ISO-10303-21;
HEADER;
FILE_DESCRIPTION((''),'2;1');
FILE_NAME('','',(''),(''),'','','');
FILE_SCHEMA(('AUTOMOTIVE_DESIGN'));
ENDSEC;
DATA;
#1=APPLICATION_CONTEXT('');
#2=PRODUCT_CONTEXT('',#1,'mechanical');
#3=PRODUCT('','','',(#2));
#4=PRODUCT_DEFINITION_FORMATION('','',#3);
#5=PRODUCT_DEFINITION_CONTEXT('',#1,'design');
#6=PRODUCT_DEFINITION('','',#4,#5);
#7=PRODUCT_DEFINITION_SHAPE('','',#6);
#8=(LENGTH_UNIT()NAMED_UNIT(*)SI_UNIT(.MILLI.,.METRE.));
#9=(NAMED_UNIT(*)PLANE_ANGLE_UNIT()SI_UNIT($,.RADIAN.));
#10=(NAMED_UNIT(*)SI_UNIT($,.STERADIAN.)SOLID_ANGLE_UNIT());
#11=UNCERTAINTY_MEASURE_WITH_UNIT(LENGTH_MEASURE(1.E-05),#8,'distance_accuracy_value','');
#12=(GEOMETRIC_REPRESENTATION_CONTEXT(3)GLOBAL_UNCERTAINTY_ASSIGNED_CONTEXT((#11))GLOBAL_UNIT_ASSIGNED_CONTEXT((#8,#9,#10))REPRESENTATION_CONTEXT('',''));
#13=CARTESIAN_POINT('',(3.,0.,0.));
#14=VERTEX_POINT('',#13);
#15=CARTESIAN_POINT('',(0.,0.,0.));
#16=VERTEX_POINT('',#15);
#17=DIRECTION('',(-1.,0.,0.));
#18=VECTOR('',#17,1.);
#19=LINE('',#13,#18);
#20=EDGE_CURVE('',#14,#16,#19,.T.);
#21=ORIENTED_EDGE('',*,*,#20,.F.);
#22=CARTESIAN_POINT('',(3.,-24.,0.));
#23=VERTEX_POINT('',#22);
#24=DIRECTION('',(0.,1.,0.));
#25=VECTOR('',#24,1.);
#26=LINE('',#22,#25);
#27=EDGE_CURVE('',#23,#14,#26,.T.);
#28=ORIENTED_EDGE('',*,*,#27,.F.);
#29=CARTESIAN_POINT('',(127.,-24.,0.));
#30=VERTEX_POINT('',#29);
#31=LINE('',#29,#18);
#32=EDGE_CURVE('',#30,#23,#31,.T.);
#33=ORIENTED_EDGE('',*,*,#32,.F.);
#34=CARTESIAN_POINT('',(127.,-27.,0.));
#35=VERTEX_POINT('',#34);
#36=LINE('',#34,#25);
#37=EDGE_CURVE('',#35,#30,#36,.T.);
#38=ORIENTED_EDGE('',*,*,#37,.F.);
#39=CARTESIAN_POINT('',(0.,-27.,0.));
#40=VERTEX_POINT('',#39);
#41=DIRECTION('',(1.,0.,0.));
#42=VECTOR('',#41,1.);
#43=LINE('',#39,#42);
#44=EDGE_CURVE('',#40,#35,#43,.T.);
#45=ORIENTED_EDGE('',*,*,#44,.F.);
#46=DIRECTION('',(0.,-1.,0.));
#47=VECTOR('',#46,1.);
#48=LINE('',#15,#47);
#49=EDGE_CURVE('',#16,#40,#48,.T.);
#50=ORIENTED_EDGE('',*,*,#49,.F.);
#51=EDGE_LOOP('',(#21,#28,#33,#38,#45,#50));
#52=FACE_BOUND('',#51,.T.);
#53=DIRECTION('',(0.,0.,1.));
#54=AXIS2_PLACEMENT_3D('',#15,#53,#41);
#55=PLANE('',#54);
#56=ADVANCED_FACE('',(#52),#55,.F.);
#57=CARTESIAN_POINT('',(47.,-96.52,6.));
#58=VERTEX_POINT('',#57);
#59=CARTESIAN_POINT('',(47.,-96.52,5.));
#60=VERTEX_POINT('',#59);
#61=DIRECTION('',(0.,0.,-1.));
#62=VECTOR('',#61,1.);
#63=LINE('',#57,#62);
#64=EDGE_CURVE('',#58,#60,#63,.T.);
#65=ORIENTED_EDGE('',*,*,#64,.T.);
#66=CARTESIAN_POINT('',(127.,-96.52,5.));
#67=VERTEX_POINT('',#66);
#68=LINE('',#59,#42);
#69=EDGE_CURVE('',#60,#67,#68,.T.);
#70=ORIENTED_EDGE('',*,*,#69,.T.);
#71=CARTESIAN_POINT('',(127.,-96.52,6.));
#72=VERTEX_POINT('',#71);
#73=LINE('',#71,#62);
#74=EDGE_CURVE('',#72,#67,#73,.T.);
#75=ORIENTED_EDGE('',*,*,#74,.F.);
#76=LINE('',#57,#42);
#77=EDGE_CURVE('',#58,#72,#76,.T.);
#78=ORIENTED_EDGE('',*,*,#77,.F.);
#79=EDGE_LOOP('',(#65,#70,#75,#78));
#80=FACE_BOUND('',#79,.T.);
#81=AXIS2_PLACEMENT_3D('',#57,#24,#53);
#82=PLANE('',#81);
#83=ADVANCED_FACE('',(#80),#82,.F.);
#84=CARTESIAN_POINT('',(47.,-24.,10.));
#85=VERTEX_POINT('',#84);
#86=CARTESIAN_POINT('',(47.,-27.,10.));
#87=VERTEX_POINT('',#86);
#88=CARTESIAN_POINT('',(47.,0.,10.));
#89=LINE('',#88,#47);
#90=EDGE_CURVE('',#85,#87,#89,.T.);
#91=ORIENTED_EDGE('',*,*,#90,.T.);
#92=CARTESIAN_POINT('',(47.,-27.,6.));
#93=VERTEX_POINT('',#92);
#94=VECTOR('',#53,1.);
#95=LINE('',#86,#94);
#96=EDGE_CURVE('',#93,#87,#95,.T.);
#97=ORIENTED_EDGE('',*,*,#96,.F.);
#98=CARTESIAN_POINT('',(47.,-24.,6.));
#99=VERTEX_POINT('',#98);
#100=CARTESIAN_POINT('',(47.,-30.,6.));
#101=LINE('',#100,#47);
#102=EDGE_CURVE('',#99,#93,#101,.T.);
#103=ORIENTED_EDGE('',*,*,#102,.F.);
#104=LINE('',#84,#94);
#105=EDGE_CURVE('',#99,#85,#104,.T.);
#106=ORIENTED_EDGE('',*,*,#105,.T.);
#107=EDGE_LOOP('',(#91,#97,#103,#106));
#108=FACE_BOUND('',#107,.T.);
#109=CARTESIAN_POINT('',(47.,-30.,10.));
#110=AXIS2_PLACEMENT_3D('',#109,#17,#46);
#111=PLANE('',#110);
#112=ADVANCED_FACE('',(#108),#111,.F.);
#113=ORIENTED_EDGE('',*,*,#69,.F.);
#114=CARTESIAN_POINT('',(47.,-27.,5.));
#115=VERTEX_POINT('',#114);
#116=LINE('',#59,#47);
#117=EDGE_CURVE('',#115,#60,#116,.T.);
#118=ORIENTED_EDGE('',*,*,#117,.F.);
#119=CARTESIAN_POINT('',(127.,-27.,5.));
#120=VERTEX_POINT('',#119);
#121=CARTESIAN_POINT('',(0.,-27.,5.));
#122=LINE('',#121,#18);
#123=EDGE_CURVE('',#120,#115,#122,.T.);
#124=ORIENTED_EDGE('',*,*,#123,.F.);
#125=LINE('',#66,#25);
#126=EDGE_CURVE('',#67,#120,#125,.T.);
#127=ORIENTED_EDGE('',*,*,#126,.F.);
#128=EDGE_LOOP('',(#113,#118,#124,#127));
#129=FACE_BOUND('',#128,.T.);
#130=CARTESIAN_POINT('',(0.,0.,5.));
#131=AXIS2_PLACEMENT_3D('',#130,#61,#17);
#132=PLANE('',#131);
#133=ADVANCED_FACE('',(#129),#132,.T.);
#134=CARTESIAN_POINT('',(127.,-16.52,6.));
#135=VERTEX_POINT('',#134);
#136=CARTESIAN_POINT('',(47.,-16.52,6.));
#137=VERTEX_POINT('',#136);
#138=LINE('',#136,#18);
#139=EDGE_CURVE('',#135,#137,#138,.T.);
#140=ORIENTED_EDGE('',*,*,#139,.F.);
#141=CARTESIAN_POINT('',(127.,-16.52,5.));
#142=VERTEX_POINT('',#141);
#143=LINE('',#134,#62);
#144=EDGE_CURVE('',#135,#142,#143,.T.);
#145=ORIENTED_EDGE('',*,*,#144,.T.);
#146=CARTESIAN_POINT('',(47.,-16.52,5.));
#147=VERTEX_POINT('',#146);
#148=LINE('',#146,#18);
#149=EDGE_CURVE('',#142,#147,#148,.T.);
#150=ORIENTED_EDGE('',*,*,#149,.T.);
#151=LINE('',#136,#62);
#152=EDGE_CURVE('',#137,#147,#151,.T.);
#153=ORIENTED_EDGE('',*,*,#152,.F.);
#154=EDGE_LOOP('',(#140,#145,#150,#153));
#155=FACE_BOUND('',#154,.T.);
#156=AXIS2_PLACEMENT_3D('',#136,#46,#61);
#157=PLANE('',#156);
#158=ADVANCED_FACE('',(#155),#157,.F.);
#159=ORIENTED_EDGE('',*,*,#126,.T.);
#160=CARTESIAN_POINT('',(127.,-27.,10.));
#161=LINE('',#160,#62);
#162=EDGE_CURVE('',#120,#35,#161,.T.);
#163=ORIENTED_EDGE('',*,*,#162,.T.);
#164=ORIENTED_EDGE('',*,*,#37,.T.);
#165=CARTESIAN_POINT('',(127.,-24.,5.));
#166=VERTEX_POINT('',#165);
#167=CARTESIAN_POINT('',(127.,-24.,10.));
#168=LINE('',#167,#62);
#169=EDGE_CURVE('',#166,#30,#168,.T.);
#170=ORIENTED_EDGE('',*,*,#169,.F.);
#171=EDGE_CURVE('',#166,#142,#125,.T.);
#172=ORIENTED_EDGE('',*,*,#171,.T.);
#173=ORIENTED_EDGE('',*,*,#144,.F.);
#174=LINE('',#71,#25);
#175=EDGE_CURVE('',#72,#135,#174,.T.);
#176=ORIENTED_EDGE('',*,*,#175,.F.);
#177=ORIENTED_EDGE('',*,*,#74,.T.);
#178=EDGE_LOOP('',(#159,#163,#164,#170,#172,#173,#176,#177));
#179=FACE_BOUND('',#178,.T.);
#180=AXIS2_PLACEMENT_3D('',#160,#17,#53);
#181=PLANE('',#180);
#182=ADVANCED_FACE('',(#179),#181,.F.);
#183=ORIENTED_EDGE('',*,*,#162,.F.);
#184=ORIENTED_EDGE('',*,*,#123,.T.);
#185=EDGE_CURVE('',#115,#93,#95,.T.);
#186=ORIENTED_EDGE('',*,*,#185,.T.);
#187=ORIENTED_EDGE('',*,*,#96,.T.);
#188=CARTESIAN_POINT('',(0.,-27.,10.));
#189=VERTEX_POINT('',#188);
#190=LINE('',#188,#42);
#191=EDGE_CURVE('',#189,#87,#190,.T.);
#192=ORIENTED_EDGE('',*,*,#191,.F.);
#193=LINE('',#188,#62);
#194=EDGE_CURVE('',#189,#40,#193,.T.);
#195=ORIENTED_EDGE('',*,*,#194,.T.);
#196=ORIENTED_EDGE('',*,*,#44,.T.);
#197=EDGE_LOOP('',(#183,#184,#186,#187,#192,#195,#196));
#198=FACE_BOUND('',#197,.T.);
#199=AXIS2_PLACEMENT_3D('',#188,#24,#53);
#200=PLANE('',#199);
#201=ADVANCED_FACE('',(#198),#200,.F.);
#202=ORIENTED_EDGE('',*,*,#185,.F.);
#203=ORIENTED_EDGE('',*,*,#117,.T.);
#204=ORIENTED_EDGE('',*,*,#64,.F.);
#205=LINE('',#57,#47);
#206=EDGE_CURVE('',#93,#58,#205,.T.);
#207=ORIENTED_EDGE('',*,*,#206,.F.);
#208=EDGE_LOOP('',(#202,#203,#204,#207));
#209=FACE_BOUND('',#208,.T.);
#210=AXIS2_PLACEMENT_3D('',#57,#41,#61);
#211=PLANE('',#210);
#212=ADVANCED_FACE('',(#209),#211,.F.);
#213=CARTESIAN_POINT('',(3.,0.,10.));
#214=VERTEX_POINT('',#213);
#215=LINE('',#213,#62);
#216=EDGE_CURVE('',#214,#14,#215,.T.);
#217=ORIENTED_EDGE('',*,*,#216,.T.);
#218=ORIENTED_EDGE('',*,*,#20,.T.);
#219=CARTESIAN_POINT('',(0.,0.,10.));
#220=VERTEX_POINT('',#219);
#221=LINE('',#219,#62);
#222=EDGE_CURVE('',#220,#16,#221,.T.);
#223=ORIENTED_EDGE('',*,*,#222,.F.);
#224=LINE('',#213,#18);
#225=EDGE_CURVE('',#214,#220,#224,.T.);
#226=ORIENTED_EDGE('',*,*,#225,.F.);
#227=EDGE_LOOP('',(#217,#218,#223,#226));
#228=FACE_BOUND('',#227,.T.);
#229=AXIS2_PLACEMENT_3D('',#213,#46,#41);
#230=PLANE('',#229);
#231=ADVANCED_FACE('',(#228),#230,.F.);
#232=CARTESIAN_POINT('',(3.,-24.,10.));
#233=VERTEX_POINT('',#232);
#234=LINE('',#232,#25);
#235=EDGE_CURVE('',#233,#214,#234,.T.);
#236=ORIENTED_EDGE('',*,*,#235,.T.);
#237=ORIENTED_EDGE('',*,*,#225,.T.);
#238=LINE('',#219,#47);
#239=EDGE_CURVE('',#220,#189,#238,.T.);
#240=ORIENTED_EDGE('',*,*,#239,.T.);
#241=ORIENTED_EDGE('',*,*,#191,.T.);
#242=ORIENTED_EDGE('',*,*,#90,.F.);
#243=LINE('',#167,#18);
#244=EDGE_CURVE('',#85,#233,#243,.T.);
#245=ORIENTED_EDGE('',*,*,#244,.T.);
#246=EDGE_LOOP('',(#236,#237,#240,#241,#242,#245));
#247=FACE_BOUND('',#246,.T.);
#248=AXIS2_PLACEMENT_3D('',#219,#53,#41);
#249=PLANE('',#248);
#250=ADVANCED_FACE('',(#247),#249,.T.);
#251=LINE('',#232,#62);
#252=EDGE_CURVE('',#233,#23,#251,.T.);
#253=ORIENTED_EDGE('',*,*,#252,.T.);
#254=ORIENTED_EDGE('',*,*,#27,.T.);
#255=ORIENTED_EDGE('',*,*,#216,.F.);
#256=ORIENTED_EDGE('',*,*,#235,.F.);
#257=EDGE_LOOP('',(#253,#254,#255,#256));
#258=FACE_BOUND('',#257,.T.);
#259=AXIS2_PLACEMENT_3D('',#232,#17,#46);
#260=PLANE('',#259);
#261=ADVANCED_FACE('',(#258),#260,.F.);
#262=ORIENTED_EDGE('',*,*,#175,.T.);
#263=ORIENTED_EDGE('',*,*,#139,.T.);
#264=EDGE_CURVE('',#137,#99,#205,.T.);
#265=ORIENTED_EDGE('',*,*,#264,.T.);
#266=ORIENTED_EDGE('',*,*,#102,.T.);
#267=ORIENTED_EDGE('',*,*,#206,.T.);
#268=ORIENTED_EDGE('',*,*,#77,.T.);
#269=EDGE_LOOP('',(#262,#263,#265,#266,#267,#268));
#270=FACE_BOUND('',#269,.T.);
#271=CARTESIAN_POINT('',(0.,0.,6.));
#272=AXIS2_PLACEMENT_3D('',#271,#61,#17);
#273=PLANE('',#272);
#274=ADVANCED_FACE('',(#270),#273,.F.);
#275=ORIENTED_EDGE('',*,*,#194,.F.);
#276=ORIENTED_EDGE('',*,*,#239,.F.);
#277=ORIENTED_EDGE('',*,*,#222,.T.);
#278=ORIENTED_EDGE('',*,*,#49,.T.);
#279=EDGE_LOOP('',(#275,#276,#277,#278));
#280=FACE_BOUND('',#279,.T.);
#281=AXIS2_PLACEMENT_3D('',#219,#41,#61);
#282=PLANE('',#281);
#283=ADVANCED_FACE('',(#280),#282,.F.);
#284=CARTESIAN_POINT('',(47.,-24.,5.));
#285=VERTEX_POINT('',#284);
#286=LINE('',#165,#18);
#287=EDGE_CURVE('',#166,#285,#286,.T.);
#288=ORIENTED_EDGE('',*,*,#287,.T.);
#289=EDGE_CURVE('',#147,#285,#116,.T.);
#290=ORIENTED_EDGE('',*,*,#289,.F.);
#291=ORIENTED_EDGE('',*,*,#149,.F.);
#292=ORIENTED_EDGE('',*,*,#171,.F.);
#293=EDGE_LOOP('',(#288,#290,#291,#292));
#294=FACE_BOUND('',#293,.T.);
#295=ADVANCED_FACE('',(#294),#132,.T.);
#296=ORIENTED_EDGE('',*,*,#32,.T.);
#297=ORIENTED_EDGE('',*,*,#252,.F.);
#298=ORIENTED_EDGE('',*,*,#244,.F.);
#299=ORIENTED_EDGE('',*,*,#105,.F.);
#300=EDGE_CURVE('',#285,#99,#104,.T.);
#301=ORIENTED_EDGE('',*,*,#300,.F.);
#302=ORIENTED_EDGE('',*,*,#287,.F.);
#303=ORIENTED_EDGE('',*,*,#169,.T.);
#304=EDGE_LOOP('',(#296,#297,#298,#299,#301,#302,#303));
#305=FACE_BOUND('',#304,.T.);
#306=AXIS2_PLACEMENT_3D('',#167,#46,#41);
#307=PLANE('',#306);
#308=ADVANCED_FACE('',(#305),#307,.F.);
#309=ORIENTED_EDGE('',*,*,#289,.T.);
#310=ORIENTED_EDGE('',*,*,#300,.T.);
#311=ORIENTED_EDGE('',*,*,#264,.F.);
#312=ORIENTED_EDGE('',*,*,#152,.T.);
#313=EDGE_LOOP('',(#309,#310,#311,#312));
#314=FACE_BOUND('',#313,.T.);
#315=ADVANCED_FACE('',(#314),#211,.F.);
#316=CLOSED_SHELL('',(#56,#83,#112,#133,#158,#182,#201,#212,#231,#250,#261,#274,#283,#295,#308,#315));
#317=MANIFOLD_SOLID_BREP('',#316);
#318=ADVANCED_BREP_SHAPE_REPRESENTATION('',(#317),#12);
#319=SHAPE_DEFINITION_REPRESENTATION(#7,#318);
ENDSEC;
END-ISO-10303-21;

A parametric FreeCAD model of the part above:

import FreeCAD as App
import Part
import Sketcher

doc = App.newDocument("Part")
body = doc.addObject("PartDesign::Body", "Body")

# Sketch on XY plane
sketch1 = body.newObject("Sketcher::SketchObject", "Sketch")
sketch1.AttachmentSupport = (doc.getObject("XY_Plane"), [""])
sketch1.MapMode = "FlatFace"
sketch1.addGeometry([
    Part.LineSegment(App.Vector(0, 0, 0), App.Vector(0, -27, 0)),  # 0
    Part.LineSegment(App.Vector(0, -27, 0), App.Vector(127, -27, 0)),  # 1
    Part.LineSegment(App.Vector(127, -27, 0), App.Vector(127, -24, 0)),  # 2
    Part.LineSegment(App.Vector(127, -24, 0), App.Vector(3, -24, 0)),  # 3
    Part.LineSegment(App.Vector(3, -24, 0), App.Vector(3, 0, 0)),  # 4
    Part.LineSegment(App.Vector(3, 0, 0), App.Vector(0, 0, 0)),  # 5
], False)
sketch1.addConstraint([
    Sketcher.Constraint("Coincident", 0, 2, 1, 1),
    Sketcher.Constraint("Coincident", 1, 2, 2, 1),
    Sketcher.Constraint("Coincident", 2, 2, 3, 1),
    Sketcher.Constraint("Coincident", 3, 2, 4, 1),
    Sketcher.Constraint("Coincident", 4, 2, 5, 1),
    Sketcher.Constraint("Coincident", 5, 2, 0, 1),
    Sketcher.Constraint("Vertical", 0),
    Sketcher.Constraint("Horizontal", 1),
    Sketcher.Constraint("Vertical", 2),
    Sketcher.Constraint("Horizontal", 3),
    Sketcher.Constraint("Vertical", 4),
    Sketcher.Constraint("Horizontal", 5),
    Sketcher.Constraint("Coincident", 5, 2, -1, 1),
    Sketcher.Constraint("Equal", 5, 2),
    Sketcher.Constraint("DistanceX", 1, 1, 1, 2, 127.0),
    Sketcher.Constraint("DistanceX", 3, 2, 3, 1, 124.0),
    Sketcher.Constraint("DistanceY", 0, 2, 0, 1, 27.0),
])
pad1 = body.newObject("PartDesign::Pad", "Pad")
pad1.Profile = sketch1
pad1.Length = 10

# Sketch on XZ plane
sketch2 = body.newObject("Sketcher::SketchObject", "Sketch001")
sketch2.AttachmentSupport = (doc.getObject("XZ_Plane"), [""])
sketch2.MapMode = "FlatFace"
sketch2.AttachmentOffset = App.Placement(App.Vector(0, 0, 24), App.Rotation())
sketch2.addGeometry([
    Part.LineSegment(App.Vector(47, 5, 0), App.Vector(47, 10, 0)),
    Part.LineSegment(App.Vector(47, 10, 0), App.Vector(127, 10, 0)),
    Part.LineSegment(App.Vector(127, 10, 0), App.Vector(127, 5, 0)),
    Part.LineSegment(App.Vector(127, 5, 0), App.Vector(47, 5, 0)),
], False)
sketch2.addConstraint([
    Sketcher.Constraint("Coincident", 0, 2, 1, 1),
    Sketcher.Constraint("Coincident", 1, 2, 2, 1),
    Sketcher.Constraint("Coincident", 2, 2, 3, 1),
    Sketcher.Constraint("Coincident", 3, 2, 0, 1),
    Sketcher.Constraint("Vertical", 0),
    Sketcher.Constraint("Horizontal", 1),
    Sketcher.Constraint("Vertical", 2),
    Sketcher.Constraint("Horizontal", 3),
    Sketcher.Constraint("DistanceX", 1, 1, 1, 2, 80.0),
    Sketcher.Constraint("DistanceY", 0, 1, 0, 2, 5.0),
    Sketcher.Constraint("DistanceX", -1, 1, 0, 2, 47.0),
    Sketcher.Constraint("DistanceY", -1, 1, 0, 2, 10.0),
])
pocket1 = body.newObject("PartDesign::Pocket", "Pocket")
pocket1.Profile = sketch2
pocket1.Length = 6
pocket1.Reversed = True

# Sketch on XY plane
sketch3 = body.newObject("Sketcher::SketchObject", "Sketch002")
sketch3.AttachmentSupport = (doc.getObject("XY_Plane"), [""])
sketch3.MapMode = "FlatFace"
sketch3.AttachmentOffset = App.Placement(App.Vector(0, 0, 5), App.Rotation())
sketch3.addGeometry([
    Part.LineSegment(App.Vector(47, -16.52, 0), App.Vector(47, -96.52, 0)),
    Part.LineSegment(App.Vector(47, -96.52, 0), App.Vector(127, -96.52, 0)),
    Part.LineSegment(App.Vector(127, -96.52, 0), App.Vector(127, -16.52, 0)),
    Part.LineSegment(App.Vector(127, -16.52, 0), App.Vector(47, -16.52, 0)),
], False)
sketch3.addConstraint([
    Sketcher.Constraint("Coincident", 0, 2, 1, 1),
    Sketcher.Constraint("Coincident", 1, 2, 2, 1),
    Sketcher.Constraint("Coincident", 2, 2, 3, 1),
    Sketcher.Constraint("Coincident", 3, 2, 0, 1),
    Sketcher.Constraint("Vertical", 0),
    Sketcher.Constraint("Horizontal", 1),
    Sketcher.Constraint("Vertical", 2),
    Sketcher.Constraint("Horizontal", 3),
    Sketcher.Constraint("Equal", 3, 0),
    Sketcher.Constraint("DistanceX", 1, 1, 1, 2, 80.0),
    Sketcher.Constraint("DistanceX", -1, 1, 0, 2, 47.0),
    Sketcher.Constraint("DistanceY", 0, 2, -1, 1, 96.52),
])
pad2 = body.newObject("PartDesign::Pad", "Pad001")
pad2.Profile = sketch3
pad2.Length = 1

doc.recompute()
